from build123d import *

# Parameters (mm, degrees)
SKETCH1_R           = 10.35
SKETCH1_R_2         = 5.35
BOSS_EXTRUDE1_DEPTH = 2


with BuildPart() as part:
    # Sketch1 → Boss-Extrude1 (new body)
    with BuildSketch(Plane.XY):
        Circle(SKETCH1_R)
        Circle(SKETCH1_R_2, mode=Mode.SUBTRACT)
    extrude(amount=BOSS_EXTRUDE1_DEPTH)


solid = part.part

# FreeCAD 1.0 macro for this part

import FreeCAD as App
import Part
import Sketcher
from FreeCAD import Vector
Q = App.Units.Quantity

doc = App.newDocument("Part")
params = doc.addObject("Spreadsheet::Sheet", "Params")
for row, (alias, value) in enumerate([
    ("sketch1_diameter", "20.7 mm"),
    ("sketch1_diameter2", "10.7 mm"),
    ("pad1_length", "2 mm"),
], start=1):
    params.set(f"A{row}", alias)
    params.set(f"B{row}", "=" + value)
    params.setAlias(f"B{row}", alias)

body = doc.addObject("PartDesign::Body", "Body")

# Sketch on XY plane
sketch1 = body.newObject("Sketcher::SketchObject", "Sketch")
sketch1.AttachmentSupport = (doc.getObject("XY_Plane"), [""])
sketch1.MapMode = "FlatFace"
sketch1.addGeometry([
    Part.Circle(Vector(0, 0, 0), Vector(0, 0, 1), 10.35),
    Part.Circle(Vector(0, 0, 0), Vector(0, 0, 1), 5.35),
], False)
sketch1.addConstraint([
    Sketcher.Constraint("Coincident", 0, 3, -1, 1),
    Sketcher.Constraint("Coincident", 1, 3, -1, 1),
    Sketcher.Constraint("Diameter", 0, Q("20.7 mm")),
    Sketcher.Constraint("Diameter", 1, Q("10.7 mm")),
])
sketch1.setExpression("Constraints[2]", "Params.sketch1_diameter")
sketch1.setExpression("Constraints[3]", "Params.sketch1_diameter2")
pad1 = body.newObject("PartDesign::Pad", "Pad")
pad1.Profile = sketch1
pad1.setExpression("Length", "Params.pad1_length")

doc.recompute()
